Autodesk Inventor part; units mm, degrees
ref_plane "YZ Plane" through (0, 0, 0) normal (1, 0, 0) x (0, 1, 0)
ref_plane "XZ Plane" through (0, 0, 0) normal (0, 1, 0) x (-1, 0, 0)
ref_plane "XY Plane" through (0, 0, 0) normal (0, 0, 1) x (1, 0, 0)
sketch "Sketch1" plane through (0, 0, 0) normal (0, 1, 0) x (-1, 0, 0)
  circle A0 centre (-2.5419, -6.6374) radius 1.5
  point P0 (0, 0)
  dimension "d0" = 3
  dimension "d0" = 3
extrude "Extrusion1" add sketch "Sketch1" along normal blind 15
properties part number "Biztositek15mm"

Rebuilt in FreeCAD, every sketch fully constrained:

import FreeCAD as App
import Part
import Sketcher

doc = App.newDocument("Part")
body = doc.addObject("PartDesign::Body", "Body")

sketch1 = body.newObject("Sketcher::SketchObject", "Sketch")
sketch1.AttachmentSupport = (doc.getObject("XZ_Plane"), [""])
sketch1.MapMode = "FlatFace"
sketch1.addGeometry(Part.Circle(App.Vector(2.5, -6.6, 0), App.Vector(0, 0, 1), 1.5), False)
sketch1.addConstraint([
    Sketcher.Constraint("Diameter", 0, 3.0),
    Sketcher.Constraint("DistanceX", -1, 1, 0, 3, 2.542),
    Sketcher.Constraint("DistanceY", 0, 3, -1, 1, 6.6374),
])
pad1 = body.newObject("PartDesign::Pad", "Pad")
pad1.Profile = sketch1
pad1.Length = 15
pad1.Reversed = True

doc.recompute()
